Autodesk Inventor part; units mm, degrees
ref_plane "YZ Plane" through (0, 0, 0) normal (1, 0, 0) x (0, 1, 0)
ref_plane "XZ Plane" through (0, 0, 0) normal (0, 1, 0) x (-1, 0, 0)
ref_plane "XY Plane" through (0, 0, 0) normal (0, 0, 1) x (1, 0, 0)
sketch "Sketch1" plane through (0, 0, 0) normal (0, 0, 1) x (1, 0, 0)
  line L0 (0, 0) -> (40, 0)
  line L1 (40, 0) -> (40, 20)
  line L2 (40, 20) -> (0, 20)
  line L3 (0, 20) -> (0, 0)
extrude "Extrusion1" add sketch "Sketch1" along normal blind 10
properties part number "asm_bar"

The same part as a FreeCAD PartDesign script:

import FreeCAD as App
import Part
import Sketcher

V = App.Vector
Q = App.Units.Quantity


def add_polygon(sketch, points):
    """Adds a closed chain of lines whose ends are joined by coincident constraints."""
    first, n = sketch.GeometryCount, len(points)
    for a, b in zip(points, points[1:] + points[:1]):
        sketch.addGeometry(Part.LineSegment(App.Vector(*a, 0), App.Vector(*b, 0)), False)
    for i in range(n):
        sketch.addConstraint(Sketcher.Constraint("Coincident", first + i, 2, first + (i + 1) % n, 1))

doc = App.newDocument("Part")
body = doc.addObject("PartDesign::Body", "Body")

# Sketch on XY plane
sketch1 = doc.addObject("Sketcher::SketchObject", "Sketch")
body.addObject(sketch1)
sketch1.AttachmentSupport = (doc.XY_Plane, [""])
sketch1.MapMode = "FlatFace"
add_polygon(sketch1, [(0, 20), (0, 0), (40, 0), (40, 20)])  # lines 0-3
sketch1.addConstraint(Sketcher.Constraint("Vertical", 0))
sketch1.addConstraint(Sketcher.Constraint("Horizontal", 1))
sketch1.addConstraint(Sketcher.Constraint("Vertical", 2))
sketch1.addConstraint(Sketcher.Constraint("Horizontal", 3))
sketch1.addConstraint(Sketcher.Constraint("Coincident", 0, 2, -1, 1))
sketch1.addConstraint(Sketcher.Constraint("DistanceX", 1, 1, 1, 2, Q("40 mm")))
sketch1.addConstraint(Sketcher.Constraint("DistanceY", 0, 2, 0, 1, Q("20 mm")))
pad1 = doc.addObject("PartDesign::Pad", "Pad")
body.addObject(pad1)
pad1.Profile = sketch1
pad1.Length = 10

doc.recompute()
